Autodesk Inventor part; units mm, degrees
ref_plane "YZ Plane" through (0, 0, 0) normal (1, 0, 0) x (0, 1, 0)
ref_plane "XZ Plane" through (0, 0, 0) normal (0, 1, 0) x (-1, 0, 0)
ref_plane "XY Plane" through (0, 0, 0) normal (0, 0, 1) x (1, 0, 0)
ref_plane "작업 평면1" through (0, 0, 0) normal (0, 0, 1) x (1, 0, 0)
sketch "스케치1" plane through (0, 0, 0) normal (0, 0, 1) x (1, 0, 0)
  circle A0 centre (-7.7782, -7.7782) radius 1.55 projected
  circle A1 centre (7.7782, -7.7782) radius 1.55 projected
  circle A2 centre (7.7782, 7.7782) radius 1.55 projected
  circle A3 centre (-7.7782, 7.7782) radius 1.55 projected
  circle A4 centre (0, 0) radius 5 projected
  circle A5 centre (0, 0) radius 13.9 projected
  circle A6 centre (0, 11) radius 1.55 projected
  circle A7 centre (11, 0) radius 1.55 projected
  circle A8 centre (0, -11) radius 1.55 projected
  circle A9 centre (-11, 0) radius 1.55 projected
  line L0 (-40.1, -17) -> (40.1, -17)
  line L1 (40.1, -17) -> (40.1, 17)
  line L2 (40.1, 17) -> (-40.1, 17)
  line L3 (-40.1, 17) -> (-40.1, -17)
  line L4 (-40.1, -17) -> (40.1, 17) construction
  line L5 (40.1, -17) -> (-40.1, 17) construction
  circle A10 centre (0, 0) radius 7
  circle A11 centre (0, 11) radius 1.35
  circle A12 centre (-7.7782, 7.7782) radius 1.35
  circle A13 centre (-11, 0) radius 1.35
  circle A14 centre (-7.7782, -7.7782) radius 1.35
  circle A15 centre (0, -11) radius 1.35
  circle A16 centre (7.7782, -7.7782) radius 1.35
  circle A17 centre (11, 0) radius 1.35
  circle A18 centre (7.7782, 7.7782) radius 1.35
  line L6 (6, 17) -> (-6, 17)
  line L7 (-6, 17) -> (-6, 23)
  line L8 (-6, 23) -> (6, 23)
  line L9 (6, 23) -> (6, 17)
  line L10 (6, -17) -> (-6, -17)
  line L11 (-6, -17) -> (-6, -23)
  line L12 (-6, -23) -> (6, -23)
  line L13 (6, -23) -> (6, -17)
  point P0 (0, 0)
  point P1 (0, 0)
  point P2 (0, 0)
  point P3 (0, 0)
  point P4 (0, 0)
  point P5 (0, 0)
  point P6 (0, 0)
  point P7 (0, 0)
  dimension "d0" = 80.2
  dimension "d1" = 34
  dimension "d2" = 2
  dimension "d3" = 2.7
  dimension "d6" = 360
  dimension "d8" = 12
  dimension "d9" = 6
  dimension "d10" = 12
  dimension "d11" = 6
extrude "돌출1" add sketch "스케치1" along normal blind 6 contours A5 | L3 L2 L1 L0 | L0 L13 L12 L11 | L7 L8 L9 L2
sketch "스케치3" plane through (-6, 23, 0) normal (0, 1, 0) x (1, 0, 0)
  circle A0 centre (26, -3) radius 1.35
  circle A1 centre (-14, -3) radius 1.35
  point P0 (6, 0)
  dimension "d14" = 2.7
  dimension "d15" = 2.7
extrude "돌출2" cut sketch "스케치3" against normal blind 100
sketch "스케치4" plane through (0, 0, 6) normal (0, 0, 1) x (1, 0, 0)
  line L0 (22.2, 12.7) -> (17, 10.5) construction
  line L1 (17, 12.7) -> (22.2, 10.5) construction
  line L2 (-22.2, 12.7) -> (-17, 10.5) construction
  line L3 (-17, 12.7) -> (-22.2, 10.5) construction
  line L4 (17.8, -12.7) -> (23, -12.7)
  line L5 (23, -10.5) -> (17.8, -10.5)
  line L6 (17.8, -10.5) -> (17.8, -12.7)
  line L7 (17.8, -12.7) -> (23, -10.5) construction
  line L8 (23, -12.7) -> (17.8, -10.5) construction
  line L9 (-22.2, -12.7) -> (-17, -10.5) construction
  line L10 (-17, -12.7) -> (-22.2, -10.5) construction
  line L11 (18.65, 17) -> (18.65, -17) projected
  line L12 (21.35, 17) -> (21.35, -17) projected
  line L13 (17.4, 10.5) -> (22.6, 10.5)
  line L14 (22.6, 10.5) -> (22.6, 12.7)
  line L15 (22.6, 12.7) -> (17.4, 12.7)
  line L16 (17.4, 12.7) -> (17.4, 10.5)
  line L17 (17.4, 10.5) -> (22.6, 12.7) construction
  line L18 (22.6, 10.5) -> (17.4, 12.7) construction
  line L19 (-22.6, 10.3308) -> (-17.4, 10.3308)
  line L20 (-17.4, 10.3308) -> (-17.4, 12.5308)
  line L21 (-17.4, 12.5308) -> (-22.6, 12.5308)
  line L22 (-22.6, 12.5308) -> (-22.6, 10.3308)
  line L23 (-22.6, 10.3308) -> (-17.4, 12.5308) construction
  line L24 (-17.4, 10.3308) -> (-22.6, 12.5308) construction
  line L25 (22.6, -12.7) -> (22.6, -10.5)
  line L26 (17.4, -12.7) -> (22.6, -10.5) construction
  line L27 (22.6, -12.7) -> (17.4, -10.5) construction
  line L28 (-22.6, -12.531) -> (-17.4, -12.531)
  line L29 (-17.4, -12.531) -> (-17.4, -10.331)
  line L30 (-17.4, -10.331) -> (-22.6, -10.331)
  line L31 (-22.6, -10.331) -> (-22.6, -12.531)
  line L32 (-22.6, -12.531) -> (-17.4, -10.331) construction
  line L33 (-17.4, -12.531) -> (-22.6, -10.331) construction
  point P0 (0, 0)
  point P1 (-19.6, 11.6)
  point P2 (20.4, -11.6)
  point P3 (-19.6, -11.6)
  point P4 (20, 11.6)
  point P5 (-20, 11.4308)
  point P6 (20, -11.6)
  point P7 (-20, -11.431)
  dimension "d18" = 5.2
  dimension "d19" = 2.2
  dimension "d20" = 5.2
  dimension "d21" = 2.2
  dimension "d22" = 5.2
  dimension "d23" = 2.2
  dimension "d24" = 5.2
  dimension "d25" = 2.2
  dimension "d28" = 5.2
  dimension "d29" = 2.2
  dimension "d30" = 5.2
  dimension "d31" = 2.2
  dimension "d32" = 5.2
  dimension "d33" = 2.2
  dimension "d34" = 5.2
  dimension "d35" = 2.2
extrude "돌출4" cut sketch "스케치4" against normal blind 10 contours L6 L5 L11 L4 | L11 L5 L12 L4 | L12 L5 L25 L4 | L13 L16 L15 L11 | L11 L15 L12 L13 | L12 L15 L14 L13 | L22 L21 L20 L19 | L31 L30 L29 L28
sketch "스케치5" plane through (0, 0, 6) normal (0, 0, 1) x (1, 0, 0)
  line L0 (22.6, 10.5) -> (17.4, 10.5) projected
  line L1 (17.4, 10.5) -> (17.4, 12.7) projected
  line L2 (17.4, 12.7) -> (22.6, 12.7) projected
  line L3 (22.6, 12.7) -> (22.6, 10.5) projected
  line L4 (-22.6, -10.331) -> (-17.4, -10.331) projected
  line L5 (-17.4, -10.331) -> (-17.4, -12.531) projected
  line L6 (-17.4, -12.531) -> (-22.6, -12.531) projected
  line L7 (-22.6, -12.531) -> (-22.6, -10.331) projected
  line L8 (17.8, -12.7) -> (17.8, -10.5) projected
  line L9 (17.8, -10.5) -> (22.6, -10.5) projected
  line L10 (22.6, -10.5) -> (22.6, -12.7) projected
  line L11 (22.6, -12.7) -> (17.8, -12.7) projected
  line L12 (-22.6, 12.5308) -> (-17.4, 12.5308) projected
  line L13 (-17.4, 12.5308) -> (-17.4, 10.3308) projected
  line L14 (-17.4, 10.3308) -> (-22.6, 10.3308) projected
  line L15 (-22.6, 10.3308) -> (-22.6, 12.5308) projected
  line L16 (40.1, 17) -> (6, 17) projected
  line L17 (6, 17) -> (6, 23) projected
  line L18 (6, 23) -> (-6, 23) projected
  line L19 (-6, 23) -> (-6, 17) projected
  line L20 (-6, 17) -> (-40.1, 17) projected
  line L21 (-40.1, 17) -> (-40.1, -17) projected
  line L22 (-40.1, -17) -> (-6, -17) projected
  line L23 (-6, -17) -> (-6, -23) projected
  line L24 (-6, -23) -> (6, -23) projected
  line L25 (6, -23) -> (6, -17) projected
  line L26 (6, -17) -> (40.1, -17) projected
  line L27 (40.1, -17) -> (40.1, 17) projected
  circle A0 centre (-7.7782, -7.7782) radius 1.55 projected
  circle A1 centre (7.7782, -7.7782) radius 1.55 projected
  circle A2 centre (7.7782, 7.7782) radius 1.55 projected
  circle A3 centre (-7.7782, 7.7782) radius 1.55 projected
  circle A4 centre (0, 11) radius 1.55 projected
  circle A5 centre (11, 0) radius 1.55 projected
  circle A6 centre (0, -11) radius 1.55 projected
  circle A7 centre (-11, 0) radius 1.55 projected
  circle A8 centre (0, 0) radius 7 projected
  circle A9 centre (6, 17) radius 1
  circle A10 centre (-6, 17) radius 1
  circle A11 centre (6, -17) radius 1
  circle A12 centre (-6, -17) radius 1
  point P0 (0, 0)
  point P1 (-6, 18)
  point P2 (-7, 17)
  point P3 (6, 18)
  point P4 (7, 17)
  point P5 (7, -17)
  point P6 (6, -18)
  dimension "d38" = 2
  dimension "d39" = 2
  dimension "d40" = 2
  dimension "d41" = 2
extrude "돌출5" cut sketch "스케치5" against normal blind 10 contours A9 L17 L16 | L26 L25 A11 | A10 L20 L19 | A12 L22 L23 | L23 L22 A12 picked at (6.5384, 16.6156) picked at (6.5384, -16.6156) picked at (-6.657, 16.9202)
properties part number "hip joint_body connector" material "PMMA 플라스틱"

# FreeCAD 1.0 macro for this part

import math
import FreeCAD as App
import Part
import Sketcher
from FreeCAD import Vector

doc = App.newDocument("Part")
body = doc.addObject("PartDesign::Body", "Body")

# Sketch on XY plane
sketch1 = body.newObject("Sketcher::SketchObject", "Sketch")
sketch1.AttachmentSupport = (doc.getObject("XY_Plane"), [""])
sketch1.MapMode = "FlatFace"
sketch1.addGeometry(Part.LineSegment(Vector(-40.1, 17, 0), Vector(-40.1, -17, 0)), False)
sketch1.addGeometry(Part.LineSegment(Vector(-40.1, -17, 0), Vector(-6, -17, 0)), False)
sketch1.addGeometry(Part.LineSegment(Vector(-6, -17, 0), Vector(-6, -23, 0)), False)
sketch1.addGeometry(Part.LineSegment(Vector(-6, -23, 0), Vector(6, -23, 0)), False)
sketch1.addGeometry(Part.LineSegment(Vector(6, -23, 0), Vector(6, -17, 0)), False)
sketch1.addGeometry(Part.LineSegment(Vector(6, -17, 0), Vector(40.1, -17, 0)), False)
sketch1.addGeometry(Part.LineSegment(Vector(40.1, -17, 0), Vector(40.1, 17, 0)), False)
sketch1.addGeometry(Part.LineSegment(Vector(40.1, 17, 0), Vector(6, 17, 0)), False)
sketch1.addGeometry(Part.LineSegment(Vector(6, 17, 0), Vector(6, 23, 0)), False)
sketch1.addGeometry(Part.LineSegment(Vector(6, 23, 0), Vector(-6, 23, 0)), False)
sketch1.addGeometry(Part.LineSegment(Vector(-6, 23, 0), Vector(-6, 17, 0)), False)
sketch1.addGeometry(Part.LineSegment(Vector(-6, 17, 0), Vector(-40.1, 17, 0)), False)
sketch1.addGeometry(Part.Circle(Vector(0, -11, 0), Vector(0, 0, 1), 1.55), False)
sketch1.addGeometry(Part.Circle(Vector(-7.7782, -7.7782, 0), Vector(0, 0, 1), 1.55), False)
sketch1.addGeometry(Part.Circle(Vector(7.7782, -7.7782, 0), Vector(0, 0, 1), 1.55), False)
sketch1.addGeometry(Part.Circle(Vector(-11, 0, 0), Vector(0, 0, 1), 1.55), False)
sketch1.addGeometry(Part.Circle(Vector(0, 0, 0), Vector(0, 0, 1), 7), False)
sketch1.addGeometry(Part.Circle(Vector(-7.7782, 7.7782, 0), Vector(0, 0, 1), 1.55), False)
sketch1.addGeometry(Part.Circle(Vector(0, 11, 0), Vector(0, 0, 1), 1.55), False)
sketch1.addGeometry(Part.Circle(Vector(11, 0, 0), Vector(0, 0, 1), 1.55), False)
sketch1.addGeometry(Part.Circle(Vector(7.7782, 7.7782, 0), Vector(0, 0, 1), 1.55), False)
sketch1.addConstraint(Sketcher.Constraint("Coincident", 0, 2, 1, 1))
sketch1.addConstraint(Sketcher.Constraint("Coincident", 1, 2, 2, 1))
sketch1.addConstraint(Sketcher.Constraint("Coincident", 2, 2, 3, 1))
sketch1.addConstraint(Sketcher.Constraint("Coincident", 3, 2, 4, 1))
sketch1.addConstraint(Sketcher.Constraint("Coincident", 4, 2, 5, 1))
sketch1.addConstraint(Sketcher.Constraint("Coincident", 5, 2, 6, 1))
sketch1.addConstraint(Sketcher.Constraint("Coincident", 6, 2, 7, 1))
sketch1.addConstraint(Sketcher.Constraint("Coincident", 7, 2, 8, 1))
sketch1.addConstraint(Sketcher.Constraint("Coincident", 8, 2, 9, 1))
sketch1.addConstraint(Sketcher.Constraint("Coincident", 9, 2, 10, 1))
sketch1.addConstraint(Sketcher.Constraint("Coincident", 10, 2, 11, 1))
sketch1.addConstraint(Sketcher.Constraint("Coincident", 11, 2, 0, 1))
sketch1.addConstraint(Sketcher.Constraint("Vertical", 0))
sketch1.addConstraint(Sketcher.Constraint("Horizontal", 1))
sketch1.addConstraint(Sketcher.Constraint("Vertical", 2))
sketch1.addConstraint(Sketcher.Constraint("Horizontal", 3))
sketch1.addConstraint(Sketcher.Constraint("Vertical", 4))
sketch1.addConstraint(Sketcher.Constraint("Horizontal", 5))
sketch1.addConstraint(Sketcher.Constraint("Vertical", 6))
sketch1.addConstraint(Sketcher.Constraint("Horizontal", 7))
sketch1.addConstraint(Sketcher.Constraint("Vertical", 8))
sketch1.addConstraint(Sketcher.Constraint("Horizontal", 9))
sketch1.addConstraint(Sketcher.Constraint("Vertical", 10))
sketch1.addConstraint(Sketcher.Constraint("Horizontal", 11))
sketch1.addConstraint(Sketcher.Constraint("Coincident", 16, 3, -1, 1))
sketch1.addConstraint(Sketcher.Constraint("Equal", 12, 13))
sketch1.addConstraint(Sketcher.Constraint("Equal", 13, 14))
sketch1.addConstraint(Sketcher.Constraint("Equal", 14, 15))
sketch1.addConstraint(Sketcher.Constraint("Equal", 15, 17))
sketch1.addConstraint(Sketcher.Constraint("Equal", 17, 18))
sketch1.addConstraint(Sketcher.Constraint("Equal", 18, 19))
sketch1.addConstraint(Sketcher.Constraint("Equal", 19, 20))
sketch1.addConstraint(Sketcher.Constraint("Symmetric", 14, 3, 17, 3, -1, 1))
sketch1.addConstraint(Sketcher.Constraint("Symmetric", 12, 3, 18, 3, -1, 1))
sketch1.addConstraint(Sketcher.Constraint("Symmetric", 15, 3, 19, 3, -1, 1))
sketch1.addConstraint(Sketcher.Constraint("Symmetric", 13, 3, 20, 3, -1, 1))
sketch1.addConstraint(Sketcher.Constraint("Symmetric", 0, 2, 6, 2, -1, 1))
sketch1.addConstraint(Sketcher.Constraint("Symmetric", 2, 2, 8, 2, -1, 1))
sketch1.addConstraint(Sketcher.Constraint("Symmetric", 4, 2, 10, 2, -1, 1))
sketch1.addConstraint(Sketcher.Constraint("Symmetric", 13, 3, 14, 3, -2))
sketch1.addConstraint(Sketcher.Constraint("Symmetric", 1, 2, 4, 2, -2))
sketch1.addConstraint(Sketcher.Constraint("PointOnObject", 12, 3, -2))
sketch1.addConstraint(Sketcher.Constraint("PointOnObject", 15, 3, -1))
sketch1.addConstraint(Sketcher.Constraint("DistanceX", 3, 1, 3, 2, 12.0))
sketch1.addConstraint(Sketcher.Constraint("DistanceY", 0, 2, 0, 1, 34.0))
sketch1.addConstraint(Sketcher.Constraint("DistanceY", 2, 2, 2, 1, 6.0))
sketch1.addConstraint(Sketcher.Constraint("Diameter", 16, 14.0))
sketch1.addConstraint(Sketcher.Constraint("DistanceY", 0, 2, 12, 3, 6.0))
sketch1.addConstraint(Sketcher.Constraint("Diameter", 12, 3.1))
sketch1.addConstraint(Sketcher.Constraint("DistanceX", 1, 1, 1, 2, 34.1))
sketch1.addConstraint(Sketcher.Constraint("DistanceX", 15, 3, -1, 1, 11.0))
sketch1.addConstraint(Sketcher.Constraint("DistanceX", 13, 3, -1, 1, 7.7782))
sketch1.addConstraint(Sketcher.Constraint("DistanceY", 13, 3, -1, 1, 7.7782))
pad1 = body.newObject("PartDesign::Pad", "Pad")
pad1.Profile = sketch1
pad1.Length = 6

# Sketch on XZ plane
sketch2 = body.newObject("Sketcher::SketchObject", "Sketch001")
sketch2.AttachmentSupport = (doc.getObject("XZ_Plane"), [""])
sketch2.MapMode = "FlatFace"
sketch2.AttachmentOffset = App.Placement(Vector(0, 0, -23), App.Rotation())
sketch2.addGeometry(Part.Circle(Vector(20, 3, 0), Vector(0, 0, 1), 1.35), False)
sketch2.addGeometry(Part.Circle(Vector(-20, 3, 0), Vector(0, 0, 1), 1.35), False)
sketch2.addConstraint(Sketcher.Constraint("Equal", 0, 1))
sketch2.addConstraint(Sketcher.Constraint("Symmetric", 0, 3, 1, 3, -2))
sketch2.addConstraint(Sketcher.Constraint("Diameter", 0, 2.7))
sketch2.addConstraint(Sketcher.Constraint("DistanceX", -1, 1, 0, 3, 20.0))
sketch2.addConstraint(Sketcher.Constraint("DistanceY", -1, 1, 0, 3, 3.0))
pocket1 = body.newObject("PartDesign::Pocket", "Pocket")
pocket1.Profile = sketch2
pocket1.Length = 100
pocket1.Reversed = True

# Sketch on XY plane
sketch3 = body.newObject("Sketcher::SketchObject", "Sketch002")
sketch3.AttachmentSupport = (doc.getObject("XY_Plane"), [""])
sketch3.MapMode = "FlatFace"
sketch3.AttachmentOffset = App.Placement(Vector(0, 0, 6), App.Rotation())
sketch3.addGeometry(Part.LineSegment(Vector(17.8, -10.5, 0), Vector(17.8, -12.7, 0)), False)
sketch3.addGeometry(Part.LineSegment(Vector(17.8, -12.7, 0), Vector(22.6, -12.7, 0)), False)
sketch3.addGeometry(Part.LineSegment(Vector(22.6, -12.7, 0), Vector(22.6, -10.5, 0)), False)
sketch3.addGeometry(Part.LineSegment(Vector(22.6, -10.5, 0), Vector(17.8, -10.5, 0)), False)
sketch3.addGeometry(Part.LineSegment(Vector(17.4, 10.5, 0), Vector(22.6, 10.5, 0)), False)
sketch3.addGeometry(Part.LineSegment(Vector(22.6, 10.5, 0), Vector(22.6, 12.7, 0)), False)
sketch3.addGeometry(Part.LineSegment(Vector(22.6, 12.7, 0), Vector(17.4, 12.7, 0)), False)
sketch3.addGeometry(Part.LineSegment(Vector(17.4, 12.7, 0), Vector(17.4, 10.5, 0)), False)
sketch3.addGeometry(Part.LineSegment(Vector(-22.6, 12.5308, 0), Vector(-22.6, 10.3308, 0)), False)
sketch3.addGeometry(Part.LineSegment(Vector(-22.6, 10.3308, 0), Vector(-17.4, 10.3308, 0)), False)
sketch3.addGeometry(Part.LineSegment(Vector(-17.4, 10.3308, 0), Vector(-17.4, 12.5308, 0)), False)
sketch3.addGeometry(Part.LineSegment(Vector(-17.4, 12.5308, 0), Vector(-22.6, 12.5308, 0)), False)
sketch3.addGeometry(Part.LineSegment(Vector(-22.6, -10.331, 0), Vector(-22.6, -12.531, 0)), False)
sketch3.addGeometry(Part.LineSegment(Vector(-22.6, -12.531, 0), Vector(-17.4, -12.531, 0)), False)
sketch3.addGeometry(Part.LineSegment(Vector(-17.4, -12.531, 0), Vector(-17.4, -10.331, 0)), False)
sketch3.addGeometry(Part.LineSegment(Vector(-17.4, -10.331, 0), Vector(-22.6, -10.331, 0)), False)
sketch3.addConstraint(Sketcher.Constraint("Coincident", 0, 2, 1, 1))
sketch3.addConstraint(Sketcher.Constraint("Coincident", 1, 2, 2, 1))
sketch3.addConstraint(Sketcher.Constraint("Coincident", 2, 2, 3, 1))
sketch3.addConstraint(Sketcher.Constraint("Coincident", 3, 2, 0, 1))
sketch3.addConstraint(Sketcher.Constraint("Coincident", 4, 2, 5, 1))
sketch3.addConstraint(Sketcher.Constraint("Coincident", 5, 2, 6, 1))
sketch3.addConstraint(Sketcher.Constraint("Coincident", 6, 2, 7, 1))
sketch3.addConstraint(Sketcher.Constraint("Coincident", 7, 2, 4, 1))
sketch3.addConstraint(Sketcher.Constraint("Coincident", 8, 2, 9, 1))
sketch3.addConstraint(Sketcher.Constraint("Coincident", 9, 2, 10, 1))
sketch3.addConstraint(Sketcher.Constraint("Coincident", 10, 2, 11, 1))
sketch3.addConstraint(Sketcher.Constraint("Coincident", 11, 2, 8, 1))
sketch3.addConstraint(Sketcher.Constraint("Coincident", 12, 2, 13, 1))
sketch3.addConstraint(Sketcher.Constraint("Coincident", 13, 2, 14, 1))
sketch3.addConstraint(Sketcher.Constraint("Coincident", 14, 2, 15, 1))
sketch3.addConstraint(Sketcher.Constraint("Coincident", 15, 2, 12, 1))
sketch3.addConstraint(Sketcher.Constraint("Vertical", 0))
sketch3.addConstraint(Sketcher.Constraint("Horizontal", 1))
sketch3.addConstraint(Sketcher.Constraint("Vertical", 2))
sketch3.addConstraint(Sketcher.Constraint("Horizontal", 3))
sketch3.addConstraint(Sketcher.Constraint("Horizontal", 4))
sketch3.addConstraint(Sketcher.Constraint("Vertical", 5))
sketch3.addConstraint(Sketcher.Constraint("Horizontal", 6))
sketch3.addConstraint(Sketcher.Constraint("Vertical", 7))
sketch3.addConstraint(Sketcher.Constraint("Vertical", 8))
sketch3.addConstraint(Sketcher.Constraint("Horizontal", 9))
sketch3.addConstraint(Sketcher.Constraint("Vertical", 10))
sketch3.addConstraint(Sketcher.Constraint("Horizontal", 11))
sketch3.addConstraint(Sketcher.Constraint("Vertical", 12))
sketch3.addConstraint(Sketcher.Constraint("Horizontal", 13))
sketch3.addConstraint(Sketcher.Constraint("Vertical", 14))
sketch3.addConstraint(Sketcher.Constraint("Horizontal", 15))
sketch3.addConstraint(Sketcher.Constraint("Symmetric", 2, 2, 4, 2, -1))
sketch3.addConstraint(Sketcher.Constraint("Symmetric", 11, 2, 12, 2, -1))
sketch3.addConstraint(Sketcher.Constraint("Symmetric", 9, 2, 14, 2, -1))
sketch3.addConstraint(Sketcher.Constraint("Equal", 6, 9))
sketch3.addConstraint(Sketcher.Constraint("Equal", 2, 5))
sketch3.addConstraint(Sketcher.Constraint("Equal", 7, 8))
sketch3.addConstraint(Sketcher.Constraint("DistanceX", 4, 1, 4, 2, 5.2))
sketch3.addConstraint(Sketcher.Constraint("DistanceY", 0, 2, 0, 1, 2.2))
sketch3.addConstraint(Sketcher.Constraint("DistanceX", 1, 1, 1, 2, 4.8))
sketch3.addConstraint(Sketcher.Constraint("DistanceY", 2, 2, 4, 2, 21.0))
sketch3.addConstraint(Sketcher.Constraint("DistanceX", 8, 2, 7, 2, 40.0))
sketch3.addConstraint(Sketcher.Constraint("DistanceX", -1, 1, 0, 2, 17.8))
sketch3.addConstraint(Sketcher.Constraint("DistanceY", 12, 2, -1, 1, 12.531))
pocket2 = body.newObject("PartDesign::Pocket", "Pocket001")
pocket2.Profile = sketch3
pocket2.Length = 10

# Sketch on XY plane
sketch4 = body.newObject("Sketcher::SketchObject", "Sketch003")
sketch4.AttachmentSupport = (doc.getObject("XY_Plane"), [""])
sketch4.MapMode = "FlatFace"
sketch4.AttachmentOffset = App.Placement(Vector(0, 0, 6), App.Rotation())
sketch4.addGeometry(Part.ArcOfCircle(Part.Circle(Vector(6, 17, 0), Vector(0, 0, 1), 1), math.radians(90), math.radians(360)), False)
sketch4.addGeometry(Part.LineSegment(Vector(7, 17, 0), Vector(6, 17, 0)), False)
sketch4.addGeometry(Part.LineSegment(Vector(6, 17, 0), Vector(6, 18, 0)), False)
sketch4.addGeometry(Part.LineSegment(Vector(6, -17, 0), Vector(7, -17, 0)), False)
sketch4.addGeometry(Part.ArcOfCircle(Part.Circle(Vector(6, -17, 0), Vector(0, 0, 1), 1), math.radians(0), math.radians(270)), False)
sketch4.addGeometry(Part.LineSegment(Vector(6, -18, 0), Vector(6, -17, 0)), False)
sketch4.addGeometry(Part.ArcOfCircle(Part.Circle(Vector(-6, 17, 0), Vector(0, 0, 1), 1), math.radians(180), math.radians(450)), False)
sketch4.addGeometry(Part.LineSegment(Vector(-6, 18, 0), Vector(-6, 17, 0)), False)
sketch4.addGeometry(Part.LineSegment(Vector(-6, 17, 0), Vector(-7, 17, 0)), False)
sketch4.addGeometry(Part.Circle(Vector(-6, -17, 0), Vector(0, 0, 1), 1), False)
sketch4.addConstraint(Sketcher.Constraint("Coincident", 0, 2, 1, 1))
sketch4.addConstraint(Sketcher.Constraint("Coincident", 1, 2, 2, 1))
sketch4.addConstraint(Sketcher.Constraint("Coincident", 2, 2, 0, 1))
sketch4.addConstraint(Sketcher.Constraint("Coincident", 3, 2, 4, 1))
sketch4.addConstraint(Sketcher.Constraint("Coincident", 4, 2, 5, 1))
sketch4.addConstraint(Sketcher.Constraint("Coincident", 5, 2, 3, 1))
sketch4.addConstraint(Sketcher.Constraint("Coincident", 6, 2, 7, 1))
sketch4.addConstraint(Sketcher.Constraint("Coincident", 7, 2, 8, 1))
sketch4.addConstraint(Sketcher.Constraint("Coincident", 8, 2, 6, 1))
sketch4.addConstraint(Sketcher.Constraint("Horizontal", 1))
sketch4.addConstraint(Sketcher.Constraint("Vertical", 2))
sketch4.addConstraint(Sketcher.Constraint("Horizontal", 3))
sketch4.addConstraint(Sketcher.Constraint("Vertical", 5))
sketch4.addConstraint(Sketcher.Constraint("Vertical", 7))
sketch4.addConstraint(Sketcher.Constraint("Horizontal", 8))
sketch4.addConstraint(Sketcher.Constraint("Coincident", 1, 2, 0, 3))
sketch4.addConstraint(Sketcher.Constraint("Coincident", 5, 2, 4, 3))
sketch4.addConstraint(Sketcher.Constraint("Coincident", 7, 2, 6, 3))
sketch4.addConstraint(Sketcher.Constraint("Equal", 0, 4))
sketch4.addConstraint(Sketcher.Constraint("Equal", 4, 6))
sketch4.addConstraint(Sketcher.Constraint("Equal", 6, 9))
sketch4.addConstraint(Sketcher.Constraint("Symmetric", 4, 3, 6, 3, -1, 1))
sketch4.addConstraint(Sketcher.Constraint("Symmetric", 0, 3, 9, 3, -1, 1))
sketch4.addConstraint(Sketcher.Constraint("Symmetric", 0, 3, 6, 3, -2))
sketch4.addConstraint(Sketcher.Constraint("Diameter", 9, 2.0))
sketch4.addConstraint(Sketcher.Constraint("DistanceX", -1, 1, 0, 3, 6.0))
sketch4.addConstraint(Sketcher.Constraint("DistanceY", -1, 1, 0, 3, 17.0))
pocket3 = body.newObject("PartDesign::Pocket", "Pocket002")
pocket3.Profile = sketch4
pocket3.Length = 10

doc.recompute()
